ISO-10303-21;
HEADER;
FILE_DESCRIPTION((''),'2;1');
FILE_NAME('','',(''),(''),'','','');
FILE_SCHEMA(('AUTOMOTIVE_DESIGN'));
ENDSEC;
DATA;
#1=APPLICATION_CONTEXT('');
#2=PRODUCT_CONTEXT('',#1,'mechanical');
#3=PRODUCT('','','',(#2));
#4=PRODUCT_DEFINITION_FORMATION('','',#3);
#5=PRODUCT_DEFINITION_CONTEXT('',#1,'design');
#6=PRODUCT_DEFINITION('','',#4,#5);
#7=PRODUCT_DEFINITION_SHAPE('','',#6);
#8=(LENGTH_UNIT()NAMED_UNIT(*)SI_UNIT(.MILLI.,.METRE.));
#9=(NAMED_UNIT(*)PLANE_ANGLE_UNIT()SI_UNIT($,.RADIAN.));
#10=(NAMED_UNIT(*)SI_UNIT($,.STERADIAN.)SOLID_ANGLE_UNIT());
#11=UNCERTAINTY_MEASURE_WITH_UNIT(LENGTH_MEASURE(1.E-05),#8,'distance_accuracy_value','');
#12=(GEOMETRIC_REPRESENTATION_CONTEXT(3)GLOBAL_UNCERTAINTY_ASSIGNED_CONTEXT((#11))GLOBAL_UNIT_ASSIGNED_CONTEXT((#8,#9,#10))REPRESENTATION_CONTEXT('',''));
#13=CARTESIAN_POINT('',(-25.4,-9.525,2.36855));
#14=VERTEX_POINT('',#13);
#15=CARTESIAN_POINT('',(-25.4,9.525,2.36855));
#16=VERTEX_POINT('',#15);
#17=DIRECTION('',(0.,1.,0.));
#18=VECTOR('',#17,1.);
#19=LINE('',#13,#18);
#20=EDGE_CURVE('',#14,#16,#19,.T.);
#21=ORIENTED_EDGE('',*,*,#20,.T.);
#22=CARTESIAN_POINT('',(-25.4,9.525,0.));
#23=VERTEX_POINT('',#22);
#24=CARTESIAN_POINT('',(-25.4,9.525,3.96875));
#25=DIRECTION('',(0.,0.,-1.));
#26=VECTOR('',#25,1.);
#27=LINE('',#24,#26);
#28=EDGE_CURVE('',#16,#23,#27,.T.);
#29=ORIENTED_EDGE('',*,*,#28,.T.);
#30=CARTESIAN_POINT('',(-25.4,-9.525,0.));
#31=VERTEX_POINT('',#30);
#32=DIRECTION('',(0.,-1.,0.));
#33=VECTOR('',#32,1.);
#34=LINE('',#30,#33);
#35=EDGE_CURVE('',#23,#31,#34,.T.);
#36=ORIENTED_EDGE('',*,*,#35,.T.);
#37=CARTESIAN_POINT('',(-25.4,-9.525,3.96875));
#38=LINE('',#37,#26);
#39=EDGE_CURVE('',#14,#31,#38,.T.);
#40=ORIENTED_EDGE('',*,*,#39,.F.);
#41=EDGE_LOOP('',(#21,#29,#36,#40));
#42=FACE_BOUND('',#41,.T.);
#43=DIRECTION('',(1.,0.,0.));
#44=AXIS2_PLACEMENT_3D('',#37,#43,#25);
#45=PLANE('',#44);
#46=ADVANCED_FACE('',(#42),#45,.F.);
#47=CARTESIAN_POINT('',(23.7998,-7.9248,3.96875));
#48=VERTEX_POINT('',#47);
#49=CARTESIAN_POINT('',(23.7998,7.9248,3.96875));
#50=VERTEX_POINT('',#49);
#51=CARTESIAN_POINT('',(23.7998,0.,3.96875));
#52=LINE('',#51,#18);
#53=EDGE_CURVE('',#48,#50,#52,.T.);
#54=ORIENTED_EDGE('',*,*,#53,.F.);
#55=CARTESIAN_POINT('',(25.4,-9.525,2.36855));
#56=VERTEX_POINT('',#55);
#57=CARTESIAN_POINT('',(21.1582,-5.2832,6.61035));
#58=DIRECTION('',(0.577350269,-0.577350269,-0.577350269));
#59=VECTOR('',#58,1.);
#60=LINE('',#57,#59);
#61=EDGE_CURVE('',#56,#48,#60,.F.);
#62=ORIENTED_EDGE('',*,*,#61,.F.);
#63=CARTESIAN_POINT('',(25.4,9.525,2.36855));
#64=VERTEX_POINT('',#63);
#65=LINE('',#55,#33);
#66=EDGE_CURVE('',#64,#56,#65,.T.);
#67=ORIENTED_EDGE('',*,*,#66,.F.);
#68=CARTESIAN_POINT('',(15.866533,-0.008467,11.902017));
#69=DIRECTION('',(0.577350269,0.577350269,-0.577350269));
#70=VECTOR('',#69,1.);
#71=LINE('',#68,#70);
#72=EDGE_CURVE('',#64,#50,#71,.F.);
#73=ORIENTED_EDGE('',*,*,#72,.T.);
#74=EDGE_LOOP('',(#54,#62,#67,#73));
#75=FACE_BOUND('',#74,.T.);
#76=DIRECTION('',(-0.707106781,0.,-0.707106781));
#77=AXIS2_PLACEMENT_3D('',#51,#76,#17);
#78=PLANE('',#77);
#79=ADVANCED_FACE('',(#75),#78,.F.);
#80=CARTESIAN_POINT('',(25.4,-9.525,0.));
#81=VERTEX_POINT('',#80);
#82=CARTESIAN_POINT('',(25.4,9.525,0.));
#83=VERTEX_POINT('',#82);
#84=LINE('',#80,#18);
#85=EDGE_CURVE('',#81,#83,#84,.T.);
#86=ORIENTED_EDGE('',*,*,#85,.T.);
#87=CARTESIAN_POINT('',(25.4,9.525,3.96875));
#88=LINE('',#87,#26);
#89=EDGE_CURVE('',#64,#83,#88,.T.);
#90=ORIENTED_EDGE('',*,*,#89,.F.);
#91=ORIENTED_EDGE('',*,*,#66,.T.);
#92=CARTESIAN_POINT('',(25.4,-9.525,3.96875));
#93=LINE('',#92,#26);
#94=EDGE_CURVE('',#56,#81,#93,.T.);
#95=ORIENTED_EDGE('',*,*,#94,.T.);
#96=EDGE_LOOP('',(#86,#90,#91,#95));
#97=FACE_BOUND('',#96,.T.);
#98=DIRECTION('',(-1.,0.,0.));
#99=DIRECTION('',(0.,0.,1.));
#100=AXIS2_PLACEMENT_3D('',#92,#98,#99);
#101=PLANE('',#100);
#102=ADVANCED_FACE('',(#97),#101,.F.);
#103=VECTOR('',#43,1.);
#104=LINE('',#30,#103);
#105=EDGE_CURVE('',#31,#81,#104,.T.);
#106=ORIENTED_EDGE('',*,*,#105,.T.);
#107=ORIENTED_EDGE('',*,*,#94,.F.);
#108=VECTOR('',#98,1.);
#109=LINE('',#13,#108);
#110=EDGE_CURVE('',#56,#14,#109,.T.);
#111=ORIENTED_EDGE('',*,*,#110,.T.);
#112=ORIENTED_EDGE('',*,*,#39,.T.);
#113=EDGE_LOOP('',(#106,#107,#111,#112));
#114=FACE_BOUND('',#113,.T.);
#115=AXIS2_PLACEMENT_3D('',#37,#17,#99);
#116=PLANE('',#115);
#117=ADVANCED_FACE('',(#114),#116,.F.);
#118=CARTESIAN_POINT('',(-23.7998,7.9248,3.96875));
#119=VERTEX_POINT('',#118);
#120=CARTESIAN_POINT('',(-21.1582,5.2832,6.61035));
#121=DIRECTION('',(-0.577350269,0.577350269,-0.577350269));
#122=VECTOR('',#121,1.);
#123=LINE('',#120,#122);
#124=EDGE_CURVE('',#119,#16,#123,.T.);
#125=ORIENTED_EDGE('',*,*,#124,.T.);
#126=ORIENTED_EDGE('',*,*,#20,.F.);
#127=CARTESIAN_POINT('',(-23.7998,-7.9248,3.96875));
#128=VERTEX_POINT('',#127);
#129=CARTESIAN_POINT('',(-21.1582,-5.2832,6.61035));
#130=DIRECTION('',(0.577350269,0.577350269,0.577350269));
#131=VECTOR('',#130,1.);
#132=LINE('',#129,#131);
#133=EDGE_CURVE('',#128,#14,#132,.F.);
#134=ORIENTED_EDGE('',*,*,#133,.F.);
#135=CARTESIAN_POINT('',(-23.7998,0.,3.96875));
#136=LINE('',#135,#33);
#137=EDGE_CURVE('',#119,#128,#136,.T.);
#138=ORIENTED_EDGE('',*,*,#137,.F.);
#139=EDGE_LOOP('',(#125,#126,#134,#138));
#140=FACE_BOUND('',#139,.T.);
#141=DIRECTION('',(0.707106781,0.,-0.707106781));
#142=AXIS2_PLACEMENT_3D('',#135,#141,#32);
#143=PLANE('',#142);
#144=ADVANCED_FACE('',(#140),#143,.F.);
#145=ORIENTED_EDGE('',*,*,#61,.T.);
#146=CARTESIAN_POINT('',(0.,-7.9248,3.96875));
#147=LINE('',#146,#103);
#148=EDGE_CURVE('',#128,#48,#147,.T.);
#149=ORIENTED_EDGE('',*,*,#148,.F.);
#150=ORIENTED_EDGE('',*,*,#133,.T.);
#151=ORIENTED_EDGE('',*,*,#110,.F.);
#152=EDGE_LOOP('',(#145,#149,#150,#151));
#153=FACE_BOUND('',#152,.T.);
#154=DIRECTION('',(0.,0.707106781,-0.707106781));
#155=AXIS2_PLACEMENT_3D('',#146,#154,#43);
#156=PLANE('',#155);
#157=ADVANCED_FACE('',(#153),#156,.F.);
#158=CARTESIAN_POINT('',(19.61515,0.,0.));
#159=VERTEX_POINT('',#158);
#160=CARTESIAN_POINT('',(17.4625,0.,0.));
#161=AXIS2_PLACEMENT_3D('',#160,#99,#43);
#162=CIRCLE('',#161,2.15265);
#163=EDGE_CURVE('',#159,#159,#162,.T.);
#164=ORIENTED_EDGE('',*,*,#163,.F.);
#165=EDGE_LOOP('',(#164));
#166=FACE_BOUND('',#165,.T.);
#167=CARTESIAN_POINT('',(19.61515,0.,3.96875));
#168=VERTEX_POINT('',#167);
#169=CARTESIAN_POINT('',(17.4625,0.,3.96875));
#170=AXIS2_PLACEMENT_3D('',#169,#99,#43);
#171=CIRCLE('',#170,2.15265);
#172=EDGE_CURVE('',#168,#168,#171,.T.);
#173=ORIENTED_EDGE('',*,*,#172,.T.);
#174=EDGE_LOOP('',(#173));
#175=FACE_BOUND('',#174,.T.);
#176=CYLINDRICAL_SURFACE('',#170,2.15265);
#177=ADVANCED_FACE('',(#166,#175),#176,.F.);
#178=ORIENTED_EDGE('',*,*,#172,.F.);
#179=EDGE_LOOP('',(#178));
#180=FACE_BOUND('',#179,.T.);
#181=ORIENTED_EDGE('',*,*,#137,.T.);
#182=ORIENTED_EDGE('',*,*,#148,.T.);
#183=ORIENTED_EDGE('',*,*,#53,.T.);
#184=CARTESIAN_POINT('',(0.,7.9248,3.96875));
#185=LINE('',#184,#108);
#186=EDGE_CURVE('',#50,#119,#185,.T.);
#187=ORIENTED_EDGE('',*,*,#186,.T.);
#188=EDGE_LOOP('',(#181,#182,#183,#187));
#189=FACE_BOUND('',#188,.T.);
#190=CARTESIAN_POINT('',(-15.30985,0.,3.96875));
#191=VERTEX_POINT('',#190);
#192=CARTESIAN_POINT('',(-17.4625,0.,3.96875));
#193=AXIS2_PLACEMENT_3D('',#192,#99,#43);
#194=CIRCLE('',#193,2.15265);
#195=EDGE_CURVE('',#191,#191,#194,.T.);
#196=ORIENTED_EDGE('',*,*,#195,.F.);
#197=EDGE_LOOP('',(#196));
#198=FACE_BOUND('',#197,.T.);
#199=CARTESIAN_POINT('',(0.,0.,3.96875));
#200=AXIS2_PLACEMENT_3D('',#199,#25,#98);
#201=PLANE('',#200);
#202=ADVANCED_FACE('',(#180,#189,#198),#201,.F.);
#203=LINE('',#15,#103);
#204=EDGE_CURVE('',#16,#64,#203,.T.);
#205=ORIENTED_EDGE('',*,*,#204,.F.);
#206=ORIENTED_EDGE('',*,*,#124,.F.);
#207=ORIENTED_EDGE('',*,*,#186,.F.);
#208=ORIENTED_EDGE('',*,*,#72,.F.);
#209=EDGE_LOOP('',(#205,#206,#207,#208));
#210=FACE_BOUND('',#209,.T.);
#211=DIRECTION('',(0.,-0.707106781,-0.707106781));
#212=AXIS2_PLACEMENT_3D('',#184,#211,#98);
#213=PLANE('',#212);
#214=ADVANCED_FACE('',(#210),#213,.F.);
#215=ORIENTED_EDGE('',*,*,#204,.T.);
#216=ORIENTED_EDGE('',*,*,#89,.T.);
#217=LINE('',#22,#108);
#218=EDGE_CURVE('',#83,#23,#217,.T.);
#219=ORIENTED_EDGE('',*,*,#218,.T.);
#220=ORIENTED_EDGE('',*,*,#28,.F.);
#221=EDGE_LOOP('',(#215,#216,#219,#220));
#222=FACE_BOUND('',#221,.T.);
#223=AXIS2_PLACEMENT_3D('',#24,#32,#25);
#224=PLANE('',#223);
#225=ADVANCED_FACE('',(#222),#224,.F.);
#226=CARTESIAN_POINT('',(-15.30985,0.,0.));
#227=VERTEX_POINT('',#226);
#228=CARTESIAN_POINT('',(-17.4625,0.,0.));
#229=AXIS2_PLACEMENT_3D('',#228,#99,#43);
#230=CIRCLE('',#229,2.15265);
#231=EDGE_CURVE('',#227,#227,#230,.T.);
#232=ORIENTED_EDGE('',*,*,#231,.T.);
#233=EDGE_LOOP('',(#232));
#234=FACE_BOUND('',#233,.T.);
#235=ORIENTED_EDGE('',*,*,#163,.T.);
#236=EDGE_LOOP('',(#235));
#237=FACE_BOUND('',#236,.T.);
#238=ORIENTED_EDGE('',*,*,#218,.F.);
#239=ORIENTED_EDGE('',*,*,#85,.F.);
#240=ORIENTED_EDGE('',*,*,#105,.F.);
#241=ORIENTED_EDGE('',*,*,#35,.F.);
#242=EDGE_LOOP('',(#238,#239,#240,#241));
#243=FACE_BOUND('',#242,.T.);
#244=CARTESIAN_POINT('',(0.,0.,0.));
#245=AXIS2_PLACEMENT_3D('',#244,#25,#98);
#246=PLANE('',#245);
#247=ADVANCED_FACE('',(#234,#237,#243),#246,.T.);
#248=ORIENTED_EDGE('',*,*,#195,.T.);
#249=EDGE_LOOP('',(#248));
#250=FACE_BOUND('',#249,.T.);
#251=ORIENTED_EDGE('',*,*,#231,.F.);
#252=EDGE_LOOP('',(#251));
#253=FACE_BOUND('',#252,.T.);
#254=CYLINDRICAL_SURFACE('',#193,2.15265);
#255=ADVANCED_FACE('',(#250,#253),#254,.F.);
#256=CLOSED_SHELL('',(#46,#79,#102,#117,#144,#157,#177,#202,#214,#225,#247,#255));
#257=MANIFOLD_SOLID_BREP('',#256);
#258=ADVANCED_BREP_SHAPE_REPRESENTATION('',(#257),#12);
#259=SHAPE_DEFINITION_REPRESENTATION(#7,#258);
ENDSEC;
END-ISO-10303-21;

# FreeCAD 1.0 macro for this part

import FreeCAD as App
import Part
import Sketcher
from FreeCAD import Vector
Q = App.Units.Quantity


def edges_at(feature, points):
    """Names of the edges that pass closest to the given points."""
    edges = feature.Shape.Edges
    near = lambda p: min(range(len(edges)), key=lambda i: edges[i].distToShape(Part.Vertex(*p))[0])
    return sorted({f"Edge{near(p) + 1}" for p in points})

doc = App.newDocument("Part")
body = doc.addObject("PartDesign::Body", "Body")

# Sketch on XY plane
sketch1 = body.newObject("Sketcher::SketchObject", "Sketch")
sketch1.AttachmentSupport = (doc.getObject("XY_Plane"), [""])
sketch1.MapMode = "FlatFace"
sketch1.addGeometry([
    Part.LineSegment(Vector(-25, 10, 0), Vector(-25, -10, 0)),
    Part.LineSegment(Vector(-25, -10, 0), Vector(25, -10, 0)),
    Part.LineSegment(Vector(25, -10, 0), Vector(25, 10, 0)),
    Part.LineSegment(Vector(25, 10, 0), Vector(-25, 10, 0)),
], False)
sketch1.addConstraint([
    Sketcher.Constraint("Coincident", 0, 2, 1, 1),
    Sketcher.Constraint("Coincident", 1, 2, 2, 1),
    Sketcher.Constraint("Coincident", 2, 2, 3, 1),
    Sketcher.Constraint("Coincident", 3, 2, 0, 1),
    Sketcher.Constraint("Vertical", 0),
    Sketcher.Constraint("Horizontal", 1),
    Sketcher.Constraint("Vertical", 2),
    Sketcher.Constraint("Horizontal", 3),
    Sketcher.Constraint("Symmetric", 0, 2, 2, 2, -1, 1),
    Sketcher.Constraint("DistanceX", 1, 1, 1, 2, Q("2 in")),
    Sketcher.Constraint("DistanceY", 0, 2, 0, 1, Q("0.75 in")),
])
pad1 = body.newObject("PartDesign::Pad", "Pad")
pad1.Profile = sketch1
pad1.Length = Q("0.15625 in")

# Sketch on XY plane
sketch2 = body.newObject("Sketcher::SketchObject", "Sketch001")
sketch2.AttachmentSupport = (doc.getObject("XY_Plane"), [""])
sketch2.MapMode = "FlatFace"
sketch2.AttachmentOffset = App.Placement(Vector(0, 0, 0.15625 * 25.4), App.Rotation())
sketch2.addGeometry([
    Part.Circle(Vector(-17.5, 0, 0), Vector(0, 0, 1), 2.2),
    Part.Circle(Vector(17.5, 0, 0), Vector(0, 0, 1), 2.2),
], False)
sketch2.addConstraint([
    Sketcher.Constraint("Equal", 0, 1),
    Sketcher.Constraint("Symmetric", 0, 3, 1, 3, -1, 1),
    Sketcher.Constraint("PointOnObject", 0, 3, -1),
    Sketcher.Constraint("Diameter", 0, Q("0.1695 in")),
    Sketcher.Constraint("DistanceX", 0, 3, -1, 1, Q("0.6875 in")),
])
doc.recompute()
hole = body.newObject("PartDesign::Hole", "Hole")
hole.Profile = sketch2
hole.ThreadType = "None"
hole.Diameter = Q("0.1695 in")
hole.DepthType = "ThroughAll"
doc.recompute()

chamfer = body.newObject("PartDesign::Chamfer", "Chamfer")
chamfer.Base = (hole, edges_at(hole, [
    (-25.4, 0, 3.969),
    (0, -9.525, 3.969),
    (25.4, 0, 3.969),
    (0, 9.525, 3.969),
]))
chamfer.Size = Q("0.063 in")

doc.recompute()
